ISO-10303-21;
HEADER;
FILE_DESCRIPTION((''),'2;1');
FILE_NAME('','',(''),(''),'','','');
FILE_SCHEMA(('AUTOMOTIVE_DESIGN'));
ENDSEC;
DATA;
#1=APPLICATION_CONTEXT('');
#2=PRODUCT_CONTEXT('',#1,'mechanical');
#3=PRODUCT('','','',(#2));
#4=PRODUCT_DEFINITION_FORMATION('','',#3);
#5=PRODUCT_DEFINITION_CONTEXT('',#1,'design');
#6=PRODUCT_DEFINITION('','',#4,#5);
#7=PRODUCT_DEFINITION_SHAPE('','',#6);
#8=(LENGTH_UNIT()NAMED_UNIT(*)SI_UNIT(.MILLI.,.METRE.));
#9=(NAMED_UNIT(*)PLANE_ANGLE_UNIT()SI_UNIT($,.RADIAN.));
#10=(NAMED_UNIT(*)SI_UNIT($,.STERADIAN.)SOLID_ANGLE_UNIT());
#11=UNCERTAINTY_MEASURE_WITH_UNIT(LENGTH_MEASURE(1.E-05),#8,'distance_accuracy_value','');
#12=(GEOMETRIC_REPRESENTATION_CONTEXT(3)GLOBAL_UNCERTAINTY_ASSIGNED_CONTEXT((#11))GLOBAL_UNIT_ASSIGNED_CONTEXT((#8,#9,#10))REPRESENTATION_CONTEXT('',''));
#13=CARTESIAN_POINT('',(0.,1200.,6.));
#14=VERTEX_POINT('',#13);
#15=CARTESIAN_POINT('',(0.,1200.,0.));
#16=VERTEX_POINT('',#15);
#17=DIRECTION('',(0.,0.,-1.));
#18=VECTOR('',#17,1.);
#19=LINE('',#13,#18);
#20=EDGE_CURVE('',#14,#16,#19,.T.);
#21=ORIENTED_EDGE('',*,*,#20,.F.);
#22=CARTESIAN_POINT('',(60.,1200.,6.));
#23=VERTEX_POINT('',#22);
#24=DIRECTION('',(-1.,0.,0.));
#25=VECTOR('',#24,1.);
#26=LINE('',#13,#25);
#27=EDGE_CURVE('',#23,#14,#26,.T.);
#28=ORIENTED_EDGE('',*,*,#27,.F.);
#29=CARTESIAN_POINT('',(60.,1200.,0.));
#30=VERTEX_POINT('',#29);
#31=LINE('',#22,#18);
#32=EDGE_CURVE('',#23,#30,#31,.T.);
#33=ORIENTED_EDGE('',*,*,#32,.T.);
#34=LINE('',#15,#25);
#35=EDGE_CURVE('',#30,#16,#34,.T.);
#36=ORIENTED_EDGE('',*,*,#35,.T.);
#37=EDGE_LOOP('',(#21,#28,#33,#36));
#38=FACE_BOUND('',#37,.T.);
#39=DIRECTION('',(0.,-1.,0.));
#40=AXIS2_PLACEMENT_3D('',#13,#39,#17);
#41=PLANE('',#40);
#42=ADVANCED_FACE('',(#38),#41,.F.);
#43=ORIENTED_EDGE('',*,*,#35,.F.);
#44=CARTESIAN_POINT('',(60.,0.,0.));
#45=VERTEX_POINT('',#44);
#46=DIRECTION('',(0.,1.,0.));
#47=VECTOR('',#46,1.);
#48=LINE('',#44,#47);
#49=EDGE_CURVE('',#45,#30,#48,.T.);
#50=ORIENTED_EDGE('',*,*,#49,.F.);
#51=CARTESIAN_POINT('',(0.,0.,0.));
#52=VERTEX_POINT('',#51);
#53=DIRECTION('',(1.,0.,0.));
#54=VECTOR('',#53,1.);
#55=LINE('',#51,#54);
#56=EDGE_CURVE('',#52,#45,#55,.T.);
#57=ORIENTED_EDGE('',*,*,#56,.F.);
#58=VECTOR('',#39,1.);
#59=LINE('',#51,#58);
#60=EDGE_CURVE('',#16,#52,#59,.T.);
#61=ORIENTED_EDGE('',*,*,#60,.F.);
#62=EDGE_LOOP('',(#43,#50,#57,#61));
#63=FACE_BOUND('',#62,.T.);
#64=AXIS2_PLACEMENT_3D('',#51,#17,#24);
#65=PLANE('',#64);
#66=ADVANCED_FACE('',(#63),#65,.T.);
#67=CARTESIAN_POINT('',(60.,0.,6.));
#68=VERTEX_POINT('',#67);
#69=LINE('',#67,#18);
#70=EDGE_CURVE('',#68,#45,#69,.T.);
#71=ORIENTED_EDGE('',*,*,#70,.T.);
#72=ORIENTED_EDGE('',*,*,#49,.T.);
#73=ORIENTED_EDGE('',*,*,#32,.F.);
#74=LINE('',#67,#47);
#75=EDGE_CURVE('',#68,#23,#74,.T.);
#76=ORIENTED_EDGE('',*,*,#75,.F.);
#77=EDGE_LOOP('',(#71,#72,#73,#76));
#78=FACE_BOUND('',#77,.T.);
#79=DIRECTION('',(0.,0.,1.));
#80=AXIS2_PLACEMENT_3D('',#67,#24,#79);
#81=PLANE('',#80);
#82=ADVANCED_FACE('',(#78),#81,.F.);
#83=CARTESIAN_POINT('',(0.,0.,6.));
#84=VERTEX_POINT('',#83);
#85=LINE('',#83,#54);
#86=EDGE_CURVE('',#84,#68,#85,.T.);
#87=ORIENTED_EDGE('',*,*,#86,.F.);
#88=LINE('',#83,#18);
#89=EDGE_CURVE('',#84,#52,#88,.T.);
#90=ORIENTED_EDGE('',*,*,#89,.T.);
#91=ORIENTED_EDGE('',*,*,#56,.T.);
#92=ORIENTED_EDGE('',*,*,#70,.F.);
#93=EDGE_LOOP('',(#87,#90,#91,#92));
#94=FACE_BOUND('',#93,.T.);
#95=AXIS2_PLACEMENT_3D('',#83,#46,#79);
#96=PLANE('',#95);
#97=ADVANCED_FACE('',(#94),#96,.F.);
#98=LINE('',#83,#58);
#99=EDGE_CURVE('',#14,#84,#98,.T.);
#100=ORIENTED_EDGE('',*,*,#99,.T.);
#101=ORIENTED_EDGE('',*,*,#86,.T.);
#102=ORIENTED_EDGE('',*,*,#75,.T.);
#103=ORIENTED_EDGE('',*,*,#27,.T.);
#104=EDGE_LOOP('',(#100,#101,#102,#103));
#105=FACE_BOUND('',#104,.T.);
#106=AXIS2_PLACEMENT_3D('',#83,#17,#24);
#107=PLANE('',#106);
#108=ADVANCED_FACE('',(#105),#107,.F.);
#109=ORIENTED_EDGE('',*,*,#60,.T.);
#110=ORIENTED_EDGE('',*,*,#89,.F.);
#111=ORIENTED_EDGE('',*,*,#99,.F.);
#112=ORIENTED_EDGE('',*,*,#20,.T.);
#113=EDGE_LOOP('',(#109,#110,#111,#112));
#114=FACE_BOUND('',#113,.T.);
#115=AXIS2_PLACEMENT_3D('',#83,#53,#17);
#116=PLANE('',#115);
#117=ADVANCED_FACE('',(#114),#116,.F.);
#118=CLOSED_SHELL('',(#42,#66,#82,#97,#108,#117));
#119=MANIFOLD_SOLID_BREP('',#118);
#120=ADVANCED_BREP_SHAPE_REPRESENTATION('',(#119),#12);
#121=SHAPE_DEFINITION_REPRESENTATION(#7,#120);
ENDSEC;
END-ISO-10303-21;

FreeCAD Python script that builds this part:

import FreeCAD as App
import Part
import Sketcher
from FreeCAD import Vector


def add_polygon(sketch, points):
    """Adds a closed chain of lines whose ends are joined by coincident constraints."""
    first, n = sketch.GeometryCount, len(points)
    for a, b in zip(points, points[1:] + points[:1]):
        sketch.addGeometry(Part.LineSegment(App.Vector(*a, 0), App.Vector(*b, 0)), False)
    for i in range(n):
        sketch.addConstraint(Sketcher.Constraint("Coincident", first + i, 2, first + (i + 1) % n, 1))

doc = App.newDocument("Part")
body = doc.addObject("PartDesign::Body", "Body")

# Sketch on XY plane
sketch1 = body.newObject("Sketcher::SketchObject", "Sketch")
sketch1.AttachmentSupport = (doc.getObject("XY_Plane"), [""])
sketch1.MapMode = "FlatFace"
add_polygon(sketch1, [(0, 1200), (0, 0), (60, 0), (60, 1200)])  # lines 0-3
sketch1.addConstraint(Sketcher.Constraint("Vertical", 0))
sketch1.addConstraint(Sketcher.Constraint("Horizontal", 1))
sketch1.addConstraint(Sketcher.Constraint("Vertical", 2))
sketch1.addConstraint(Sketcher.Constraint("Horizontal", 3))
sketch1.addConstraint(Sketcher.Constraint("Coincident", 0, 2, -1, 1))
sketch1.addConstraint(Sketcher.Constraint("DistanceX", 1, 1, 1, 2, 60.0))
sketch1.addConstraint(Sketcher.Constraint("DistanceY", 0, 2, 0, 1, 1200.0))
pad1 = body.newObject("PartDesign::Pad", "Pad")
pad1.Profile = sketch1
pad1.Length = 6

doc.recompute()
